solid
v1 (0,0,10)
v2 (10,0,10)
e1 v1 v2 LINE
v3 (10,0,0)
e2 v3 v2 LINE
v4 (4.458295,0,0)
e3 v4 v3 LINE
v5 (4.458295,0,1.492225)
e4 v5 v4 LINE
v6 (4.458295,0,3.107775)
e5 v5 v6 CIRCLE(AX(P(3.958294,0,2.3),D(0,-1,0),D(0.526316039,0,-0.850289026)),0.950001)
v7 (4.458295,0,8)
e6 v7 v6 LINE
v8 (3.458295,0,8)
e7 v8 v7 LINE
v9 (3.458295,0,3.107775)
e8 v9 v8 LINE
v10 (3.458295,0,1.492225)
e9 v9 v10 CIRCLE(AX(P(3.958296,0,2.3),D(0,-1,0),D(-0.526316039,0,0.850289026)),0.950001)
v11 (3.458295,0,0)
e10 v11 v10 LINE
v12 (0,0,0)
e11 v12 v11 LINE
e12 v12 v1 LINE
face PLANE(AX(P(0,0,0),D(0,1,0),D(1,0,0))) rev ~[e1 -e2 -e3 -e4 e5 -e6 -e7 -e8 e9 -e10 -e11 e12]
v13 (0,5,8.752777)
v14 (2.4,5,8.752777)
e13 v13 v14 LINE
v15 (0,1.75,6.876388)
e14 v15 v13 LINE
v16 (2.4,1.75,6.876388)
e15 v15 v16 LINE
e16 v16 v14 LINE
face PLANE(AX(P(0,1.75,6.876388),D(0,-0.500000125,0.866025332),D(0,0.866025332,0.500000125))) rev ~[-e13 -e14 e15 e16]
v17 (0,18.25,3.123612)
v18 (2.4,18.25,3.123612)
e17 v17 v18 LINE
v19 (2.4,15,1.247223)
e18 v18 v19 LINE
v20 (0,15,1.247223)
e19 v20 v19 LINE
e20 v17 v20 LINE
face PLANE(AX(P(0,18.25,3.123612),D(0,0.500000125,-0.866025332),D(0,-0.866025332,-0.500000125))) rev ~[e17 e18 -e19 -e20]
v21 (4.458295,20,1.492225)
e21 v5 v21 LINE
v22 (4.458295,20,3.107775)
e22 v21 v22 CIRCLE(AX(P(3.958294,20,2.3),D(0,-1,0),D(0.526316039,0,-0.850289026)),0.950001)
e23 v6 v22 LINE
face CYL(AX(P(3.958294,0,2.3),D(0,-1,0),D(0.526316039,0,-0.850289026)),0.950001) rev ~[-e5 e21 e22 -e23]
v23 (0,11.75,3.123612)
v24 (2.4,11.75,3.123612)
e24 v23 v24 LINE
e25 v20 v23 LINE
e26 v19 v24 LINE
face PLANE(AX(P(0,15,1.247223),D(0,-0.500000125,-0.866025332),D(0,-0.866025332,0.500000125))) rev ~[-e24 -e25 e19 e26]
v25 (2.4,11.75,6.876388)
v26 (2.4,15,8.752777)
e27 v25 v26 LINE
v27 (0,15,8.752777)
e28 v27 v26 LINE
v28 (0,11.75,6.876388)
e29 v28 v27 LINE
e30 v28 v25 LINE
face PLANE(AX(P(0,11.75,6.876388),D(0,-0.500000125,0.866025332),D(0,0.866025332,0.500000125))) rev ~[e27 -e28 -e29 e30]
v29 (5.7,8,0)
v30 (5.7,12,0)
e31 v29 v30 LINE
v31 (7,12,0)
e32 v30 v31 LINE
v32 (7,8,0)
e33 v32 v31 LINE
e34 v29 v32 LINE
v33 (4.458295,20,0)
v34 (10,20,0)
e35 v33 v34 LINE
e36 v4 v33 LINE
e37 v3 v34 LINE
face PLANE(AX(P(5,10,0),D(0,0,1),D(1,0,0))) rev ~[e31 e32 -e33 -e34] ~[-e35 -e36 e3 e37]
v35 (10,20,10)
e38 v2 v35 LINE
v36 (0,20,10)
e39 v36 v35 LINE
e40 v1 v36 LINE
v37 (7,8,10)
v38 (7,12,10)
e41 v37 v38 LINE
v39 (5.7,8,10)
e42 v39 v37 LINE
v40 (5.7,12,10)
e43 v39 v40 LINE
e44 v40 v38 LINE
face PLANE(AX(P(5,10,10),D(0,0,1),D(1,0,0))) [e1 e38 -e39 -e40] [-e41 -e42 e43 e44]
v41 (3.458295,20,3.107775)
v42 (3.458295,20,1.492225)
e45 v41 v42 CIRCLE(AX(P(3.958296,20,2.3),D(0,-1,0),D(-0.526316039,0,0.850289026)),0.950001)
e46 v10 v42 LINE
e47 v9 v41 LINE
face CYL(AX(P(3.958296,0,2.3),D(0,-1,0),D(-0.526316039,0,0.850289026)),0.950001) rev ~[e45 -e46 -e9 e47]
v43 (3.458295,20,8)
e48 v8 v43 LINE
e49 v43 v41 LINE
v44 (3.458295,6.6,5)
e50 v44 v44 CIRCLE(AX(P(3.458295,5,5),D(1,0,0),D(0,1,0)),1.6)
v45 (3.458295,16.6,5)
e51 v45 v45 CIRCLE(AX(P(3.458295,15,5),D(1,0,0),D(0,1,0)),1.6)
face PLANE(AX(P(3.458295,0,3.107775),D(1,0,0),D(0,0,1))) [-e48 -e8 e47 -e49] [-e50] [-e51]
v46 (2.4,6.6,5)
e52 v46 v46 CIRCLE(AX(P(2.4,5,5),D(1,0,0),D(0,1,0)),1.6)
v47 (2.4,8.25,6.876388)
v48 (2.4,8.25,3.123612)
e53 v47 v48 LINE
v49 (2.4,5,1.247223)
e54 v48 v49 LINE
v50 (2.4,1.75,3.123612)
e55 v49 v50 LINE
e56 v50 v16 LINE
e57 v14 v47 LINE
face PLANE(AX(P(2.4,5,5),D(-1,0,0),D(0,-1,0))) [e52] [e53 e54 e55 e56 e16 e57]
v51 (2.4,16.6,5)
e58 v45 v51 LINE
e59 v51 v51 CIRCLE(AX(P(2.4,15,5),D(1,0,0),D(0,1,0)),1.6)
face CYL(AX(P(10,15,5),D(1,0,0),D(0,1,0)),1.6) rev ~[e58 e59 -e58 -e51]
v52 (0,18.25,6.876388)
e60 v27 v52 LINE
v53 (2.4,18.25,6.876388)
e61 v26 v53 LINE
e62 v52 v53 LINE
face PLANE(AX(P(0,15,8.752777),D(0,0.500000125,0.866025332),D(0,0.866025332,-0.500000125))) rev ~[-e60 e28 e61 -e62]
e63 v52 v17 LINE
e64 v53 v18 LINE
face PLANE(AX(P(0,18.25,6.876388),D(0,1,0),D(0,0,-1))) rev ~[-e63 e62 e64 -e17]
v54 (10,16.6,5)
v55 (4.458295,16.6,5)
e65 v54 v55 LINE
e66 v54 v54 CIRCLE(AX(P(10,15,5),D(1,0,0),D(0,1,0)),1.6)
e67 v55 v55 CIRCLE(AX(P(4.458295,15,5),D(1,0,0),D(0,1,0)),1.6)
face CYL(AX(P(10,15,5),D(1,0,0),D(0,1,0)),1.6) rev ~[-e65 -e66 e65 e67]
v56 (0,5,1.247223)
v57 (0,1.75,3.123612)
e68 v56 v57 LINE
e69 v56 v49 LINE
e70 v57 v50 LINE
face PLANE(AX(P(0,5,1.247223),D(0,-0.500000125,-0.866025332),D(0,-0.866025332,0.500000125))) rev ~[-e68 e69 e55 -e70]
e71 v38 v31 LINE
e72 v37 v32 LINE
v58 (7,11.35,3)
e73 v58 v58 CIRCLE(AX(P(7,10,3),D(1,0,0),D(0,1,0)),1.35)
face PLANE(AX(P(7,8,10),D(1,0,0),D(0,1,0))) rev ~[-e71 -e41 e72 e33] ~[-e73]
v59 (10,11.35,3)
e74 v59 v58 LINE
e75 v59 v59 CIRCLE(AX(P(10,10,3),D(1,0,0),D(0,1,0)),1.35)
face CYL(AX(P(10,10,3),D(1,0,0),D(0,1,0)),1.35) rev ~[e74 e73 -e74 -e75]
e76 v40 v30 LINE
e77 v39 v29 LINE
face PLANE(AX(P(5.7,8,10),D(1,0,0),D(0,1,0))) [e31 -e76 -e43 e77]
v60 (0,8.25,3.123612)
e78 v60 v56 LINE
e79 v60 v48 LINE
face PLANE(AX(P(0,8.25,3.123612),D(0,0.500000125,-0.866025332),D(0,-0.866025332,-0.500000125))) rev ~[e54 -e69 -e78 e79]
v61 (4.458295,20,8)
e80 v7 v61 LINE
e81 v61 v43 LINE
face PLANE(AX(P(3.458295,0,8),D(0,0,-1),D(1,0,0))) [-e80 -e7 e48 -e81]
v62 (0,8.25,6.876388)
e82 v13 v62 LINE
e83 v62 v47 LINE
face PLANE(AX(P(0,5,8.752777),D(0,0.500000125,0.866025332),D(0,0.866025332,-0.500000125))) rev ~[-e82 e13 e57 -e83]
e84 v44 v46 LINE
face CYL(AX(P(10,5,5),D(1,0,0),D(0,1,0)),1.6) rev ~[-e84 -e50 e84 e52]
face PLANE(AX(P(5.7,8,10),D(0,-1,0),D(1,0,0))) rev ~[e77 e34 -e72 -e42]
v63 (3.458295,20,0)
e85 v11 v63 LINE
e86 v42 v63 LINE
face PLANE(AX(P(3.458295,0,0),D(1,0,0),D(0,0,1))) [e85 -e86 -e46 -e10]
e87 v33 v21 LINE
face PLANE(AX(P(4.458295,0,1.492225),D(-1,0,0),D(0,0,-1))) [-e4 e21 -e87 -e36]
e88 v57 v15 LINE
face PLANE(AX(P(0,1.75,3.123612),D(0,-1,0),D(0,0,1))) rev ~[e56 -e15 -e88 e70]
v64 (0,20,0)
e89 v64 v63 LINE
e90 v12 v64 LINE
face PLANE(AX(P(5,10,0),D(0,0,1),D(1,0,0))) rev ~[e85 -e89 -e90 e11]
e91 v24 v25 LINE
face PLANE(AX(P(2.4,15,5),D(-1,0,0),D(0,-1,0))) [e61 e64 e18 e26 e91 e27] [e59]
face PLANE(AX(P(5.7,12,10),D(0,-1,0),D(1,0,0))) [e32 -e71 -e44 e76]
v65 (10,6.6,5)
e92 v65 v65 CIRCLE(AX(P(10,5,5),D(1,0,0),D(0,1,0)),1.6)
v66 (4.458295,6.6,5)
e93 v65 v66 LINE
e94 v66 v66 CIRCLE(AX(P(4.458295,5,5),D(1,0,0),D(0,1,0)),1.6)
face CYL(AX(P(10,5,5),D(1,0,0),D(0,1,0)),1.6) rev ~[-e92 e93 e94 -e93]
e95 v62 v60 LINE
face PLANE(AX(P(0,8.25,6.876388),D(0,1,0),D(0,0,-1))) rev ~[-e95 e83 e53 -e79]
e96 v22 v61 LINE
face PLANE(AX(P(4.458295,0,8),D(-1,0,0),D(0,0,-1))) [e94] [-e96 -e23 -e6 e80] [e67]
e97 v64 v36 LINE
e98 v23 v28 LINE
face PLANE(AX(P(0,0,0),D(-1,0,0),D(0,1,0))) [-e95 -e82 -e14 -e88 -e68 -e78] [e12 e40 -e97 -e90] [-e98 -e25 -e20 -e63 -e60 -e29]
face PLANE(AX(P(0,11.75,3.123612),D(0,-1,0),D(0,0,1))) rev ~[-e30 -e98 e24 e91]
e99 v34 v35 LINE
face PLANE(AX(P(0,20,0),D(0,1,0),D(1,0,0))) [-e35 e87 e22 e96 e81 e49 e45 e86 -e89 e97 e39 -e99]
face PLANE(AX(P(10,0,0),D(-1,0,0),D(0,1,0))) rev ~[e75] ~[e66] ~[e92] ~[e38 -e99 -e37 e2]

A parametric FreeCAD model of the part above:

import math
import FreeCAD as App
import Part
import Sketcher

V = App.Vector
Q = App.Units.Quantity

doc = App.newDocument("Part")
body = doc.addObject("PartDesign::Body", "Body")

# Sketch on XY plane
sketch1 = body.newObject("Sketcher::SketchObject", "Sketch")
sketch1.AttachmentSupport = (doc.getObject("XY_Plane"), [""])
sketch1.MapMode = "FlatFace"
sketch1.addGeometry(Part.LineSegment(V(0, 20, 0), V(0, 0, 0)), False)
sketch1.addGeometry(Part.LineSegment(V(0, 0, 0), V(10, 0, 0)), False)
sketch1.addGeometry(Part.LineSegment(V(10, 0, 0), V(10, 20, 0)), False)
sketch1.addGeometry(Part.LineSegment(V(10, 20, 0), V(0, 20, 0)), False)
sketch1.addConstraint(Sketcher.Constraint("Coincident", 0, 2, 1, 1))
sketch1.addConstraint(Sketcher.Constraint("Coincident", 1, 2, 2, 1))
sketch1.addConstraint(Sketcher.Constraint("Coincident", 2, 2, 3, 1))
sketch1.addConstraint(Sketcher.Constraint("Coincident", 3, 2, 0, 1))
sketch1.addConstraint(Sketcher.Constraint("Vertical", 0))
sketch1.addConstraint(Sketcher.Constraint("Horizontal", 1))
sketch1.addConstraint(Sketcher.Constraint("Vertical", 2))
sketch1.addConstraint(Sketcher.Constraint("Horizontal", 3))
sketch1.addConstraint(Sketcher.Constraint("Coincident", 0, 2, -1, 1))
sketch1.addConstraint(Sketcher.Constraint("DistanceX", 1, 1, 1, 2, 10.0))
sketch1.addConstraint(Sketcher.Constraint("DistanceY", 0, 2, 0, 1, 20.0))
pad1 = body.newObject("PartDesign::Pad", "Pad")
pad1.Profile = sketch1
pad1.Length = 10

# Sketch on XZ plane
sketch2 = body.newObject("Sketcher::SketchObject", "Sketch001")
sketch2.AttachmentSupport = (doc.getObject("XZ_Plane"), [""])
sketch2.MapMode = "FlatFace"
sketch2.addGeometry(Part.LineSegment(V(3.458295, 1.492225, 0), V(3.458295, 0, 0)), False)
sketch2.addGeometry(Part.LineSegment(V(3.458295, 0, 0), V(4.458295, 0, 0)), False)
sketch2.addGeometry(Part.LineSegment(V(4.458295, 0, 0), V(4.458295, 1.492225, 0)), False)
sketch2.addGeometry(Part.ArcOfCircle(Part.Circle(V(3.958294, 2.3, 0), V(0, 0, 1), 0.950001), math.radians(-58.243119), math.radians(58.243119)), False)
sketch2.addGeometry(Part.LineSegment(V(4.458295, 3.107775, 0), V(4.458295, 8, 0)), False)
sketch2.addGeometry(Part.LineSegment(V(4.458295, 8, 0), V(3.458295, 8, 0)), False)
sketch2.addGeometry(Part.LineSegment(V(3.458295, 8, 0), V(3.458295, 3.107775, 0)), False)
sketch2.addGeometry(Part.ArcOfCircle(Part.Circle(V(3.958296, 2.3, 0), V(0, 0, 1), 0.950001), math.radians(121.756881), math.radians(238.243119)), False)
sketch2.addConstraint(Sketcher.Constraint("Coincident", 0, 2, 1, 1))
sketch2.addConstraint(Sketcher.Constraint("Coincident", 1, 2, 2, 1))
sketch2.addConstraint(Sketcher.Constraint("Coincident", 2, 2, 3, 1))
sketch2.addConstraint(Sketcher.Constraint("Coincident", 3, 2, 4, 1))
sketch2.addConstraint(Sketcher.Constraint("Coincident", 4, 2, 5, 1))
sketch2.addConstraint(Sketcher.Constraint("Coincident", 5, 2, 6, 1))
sketch2.addConstraint(Sketcher.Constraint("Coincident", 6, 2, 7, 1))
sketch2.addConstraint(Sketcher.Constraint("Coincident", 7, 2, 0, 1))
sketch2.addConstraint(Sketcher.Constraint("Vertical", 0))
sketch2.addConstraint(Sketcher.Constraint("Horizontal", 1))
sketch2.addConstraint(Sketcher.Constraint("Vertical", 2))
sketch2.addConstraint(Sketcher.Constraint("Vertical", 4))
sketch2.addConstraint(Sketcher.Constraint("Horizontal", 5))
sketch2.addConstraint(Sketcher.Constraint("Vertical", 6))
sketch2.addConstraint(Sketcher.Constraint("Coincident", 7, 3, 3, 3))
sketch2.addConstraint(Sketcher.Constraint("Equal", 3, 7))
sketch2.addConstraint(Sketcher.Constraint("PointOnObject", 0, 2, -1))
sketch2.addConstraint(Sketcher.Constraint("Horizontal", 3, 2, 6, 2))
sketch2.addConstraint(Sketcher.Constraint("Horizontal", 2, 2, 7, 2))
sketch2.addConstraint(Sketcher.Constraint("Vertical", 2, 2, 3, 2))
sketch2.addConstraint(Sketcher.Constraint("DistanceX", 1, 1, 1, 2, 1.0))
sketch2.addConstraint(Sketcher.Constraint("Radius", 3, 0.950001))
sketch2.addConstraint(Sketcher.Constraint("DistanceY", -1, 1, 4, 2, 8.0))
sketch2.addConstraint(Sketcher.Constraint("DistanceY", -1, 1, 3, 3, 2.3))
sketch2.addConstraint(Sketcher.Constraint("DistanceX", -1, 1, 3, 3, 3.958294))
pocket1 = body.newObject("PartDesign::Pocket", "Pocket")
pocket1.Profile = sketch2
pocket1.Type = "ThroughAll"

# Sketch on YZ plane
sketch3 = body.newObject("Sketcher::SketchObject", "Sketch002")
sketch3.AttachmentSupport = (doc.getObject("YZ_Plane"), [""])
sketch3.MapMode = "FlatFace"
sketch3.addGeometry(Part.LineSegment(V(8.25, 6.876388, 0), V(8.25, 3.123612, 0)), False)
sketch3.addGeometry(Part.LineSegment(V(8.25, 3.123612, 0), V(5, 1.247223, 0)), False)
sketch3.addGeometry(Part.LineSegment(V(5, 1.247223, 0), V(1.75, 3.123612, 0)), False)
sketch3.addGeometry(Part.LineSegment(V(1.75, 3.123612, 0), V(1.75, 6.876388, 0)), False)
sketch3.addGeometry(Part.LineSegment(V(1.75, 6.876388, 0), V(5, 8.752777, 0)), False)
sketch3.addGeometry(Part.LineSegment(V(5, 8.752777, 0), V(8.25, 6.876388, 0)), False)
sketch3.addGeometry(Part.LineSegment(V(18.25, 6.876388, 0), V(18.25, 3.123612, 0)), False)
sketch3.addGeometry(Part.LineSegment(V(18.25, 3.123612, 0), V(15, 1.247223, 0)), False)
sketch3.addGeometry(Part.LineSegment(V(15, 1.247223, 0), V(11.75, 3.123612, 0)), False)
sketch3.addGeometry(Part.LineSegment(V(11.75, 3.123612, 0), V(11.75, 6.876388, 0)), False)
sketch3.addGeometry(Part.LineSegment(V(11.75, 6.876388, 0), V(15, 8.752777, 0)), False)
sketch3.addGeometry(Part.LineSegment(V(15, 8.752777, 0), V(18.25, 6.876388, 0)), False)
sketch3.addConstraint(Sketcher.Constraint("Coincident", 0, 2, 1, 1))
sketch3.addConstraint(Sketcher.Constraint("Coincident", 1, 2, 2, 1))
sketch3.addConstraint(Sketcher.Constraint("Coincident", 2, 2, 3, 1))
sketch3.addConstraint(Sketcher.Constraint("Coincident", 3, 2, 4, 1))
sketch3.addConstraint(Sketcher.Constraint("Coincident", 4, 2, 5, 1))
sketch3.addConstraint(Sketcher.Constraint("Coincident", 5, 2, 0, 1))
sketch3.addConstraint(Sketcher.Constraint("Coincident", 6, 2, 7, 1))
sketch3.addConstraint(Sketcher.Constraint("Coincident", 7, 2, 8, 1))
sketch3.addConstraint(Sketcher.Constraint("Coincident", 8, 2, 9, 1))
sketch3.addConstraint(Sketcher.Constraint("Coincident", 9, 2, 10, 1))
sketch3.addConstraint(Sketcher.Constraint("Coincident", 10, 2, 11, 1))
sketch3.addConstraint(Sketcher.Constraint("Coincident", 11, 2, 6, 1))
sketch3.addConstraint(Sketcher.Constraint("Vertical", 0))
sketch3.addConstraint(Sketcher.Constraint("Vertical", 3))
sketch3.addConstraint(Sketcher.Constraint("Vertical", 6))
sketch3.addConstraint(Sketcher.Constraint("Vertical", 9))
sketch3.addConstraint(Sketcher.Constraint("Parallel", 1, 4))
sketch3.addConstraint(Sketcher.Constraint("Parallel", 2, 5))
sketch3.addConstraint(Sketcher.Constraint("Parallel", 4, 7))
sketch3.addConstraint(Sketcher.Constraint("Parallel", 5, 8))
sketch3.addConstraint(Sketcher.Constraint("Parallel", 7, 10))
sketch3.addConstraint(Sketcher.Constraint("Parallel", 8, 11))
sketch3.addConstraint(Sketcher.Constraint("Horizontal", 0, 2, 2, 2))
sketch3.addConstraint(Sketcher.Constraint("Horizontal", 3, 2, 5, 2))
sketch3.addConstraint(Sketcher.Constraint("Horizontal", 2, 2, 6, 2))
sketch3.addConstraint(Sketcher.Constraint("Horizontal", 1, 2, 7, 2))
sketch3.addConstraint(Sketcher.Constraint("Horizontal", 6, 2, 8, 2))
sketch3.addConstraint(Sketcher.Constraint("Horizontal", 5, 2, 9, 2))
sketch3.addConstraint(Sketcher.Constraint("Horizontal", 4, 2, 10, 2))
sketch3.addConstraint(Sketcher.Constraint("Vertical", 1, 2, 4, 2))
sketch3.addConstraint(Sketcher.Constraint("Angle", 1, Q("-149.999992 deg")))
sketch3.addConstraint(Sketcher.Constraint("DistanceX", -1, 1, 1, 2, 5.0))
sketch3.addConstraint(Sketcher.Constraint("DistanceX", -1, 1, 7, 2, 15.0))
sketch3.addConstraint(Sketcher.Constraint("DistanceX", 2, 2, 0, 2, 6.5))
sketch3.addConstraint(Sketcher.Constraint("DistanceY", 0, 2, 0, 1, 3.752776))
sketch3.addConstraint(Sketcher.Constraint("DistanceY", -1, 1, 0, 2, 3.123612))
pocket2 = body.newObject("PartDesign::Pocket", "Pocket001")
pocket2.Profile = sketch3
pocket2.Length = 2.4
pocket2.Reversed = True

# Sketch on YZ plane
sketch4 = body.newObject("Sketcher::SketchObject", "Sketch003")
sketch4.AttachmentSupport = (doc.getObject("YZ_Plane"), [""])
sketch4.MapMode = "FlatFace"
sketch4.AttachmentOffset = App.Placement(V(0, 0, 10), App.Rotation())
sketch4.addGeometry(Part.Circle(V(5, 5, 0), V(0, 0, 1), 1.6), False)
sketch4.addGeometry(Part.Circle(V(15, 5, 0), V(0, 0, 1), 1.6), False)
sketch4.addConstraint(Sketcher.Constraint("Equal", 0, 1))
sketch4.addConstraint(Sketcher.Constraint("Horizontal", 0, 3, 1, 3))
sketch4.addConstraint(Sketcher.Constraint("Diameter", 0, 3.2))
sketch4.addConstraint(Sketcher.Constraint("DistanceX", -1, 1, 0, 3, 5.0))
sketch4.addConstraint(Sketcher.Constraint("DistanceY", -1, 1, 0, 3, 5.0))
sketch4.addConstraint(Sketcher.Constraint("DistanceX", -1, 1, 1, 3, 15.0))
pocket3 = body.newObject("PartDesign::Pocket", "Pocket002")
pocket3.Profile = sketch4
pocket3.Type = "ThroughAll"

# Sketch on XY plane
sketch5 = body.newObject("Sketcher::SketchObject", "Sketch004")
sketch5.AttachmentSupport = (doc.getObject("XY_Plane"), [""])
sketch5.MapMode = "FlatFace"
sketch5.AttachmentOffset = App.Placement(V(0, 0, 10), App.Rotation())
sketch5.addGeometry(Part.LineSegment(V(5.7, 12, 0), V(5.7, 8, 0)), False)
sketch5.addGeometry(Part.LineSegment(V(5.7, 8, 0), V(7, 8, 0)), False)
sketch5.addGeometry(Part.LineSegment(V(7, 8, 0), V(7, 12, 0)), False)
sketch5.addGeometry(Part.LineSegment(V(7, 12, 0), V(5.7, 12, 0)), False)
sketch5.addConstraint(Sketcher.Constraint("Coincident", 0, 2, 1, 1))
sketch5.addConstraint(Sketcher.Constraint("Coincident", 1, 2, 2, 1))
sketch5.addConstraint(Sketcher.Constraint("Coincident", 2, 2, 3, 1))
sketch5.addConstraint(Sketcher.Constraint("Coincident", 3, 2, 0, 1))
sketch5.addConstraint(Sketcher.Constraint("Vertical", 0))
sketch5.addConstraint(Sketcher.Constraint("Horizontal", 1))
sketch5.addConstraint(Sketcher.Constraint("Vertical", 2))
sketch5.addConstraint(Sketcher.Constraint("Horizontal", 3))
sketch5.addConstraint(Sketcher.Constraint("DistanceY", 0, 2, 0, 1, 4.0))
sketch5.addConstraint(Sketcher.Constraint("DistanceX", 1, 1, 1, 2, 1.3))
sketch5.addConstraint(Sketcher.Constraint("DistanceY", -1, 1, 0, 2, 8.0))
sketch5.addConstraint(Sketcher.Constraint("DistanceX", -1, 1, 1, 2, 7.0))
pocket4 = body.newObject("PartDesign::Pocket", "Pocket003")
pocket4.Profile = sketch5
pocket4.Type = "ThroughAll"

# Sketch on YZ plane
sketch6 = body.newObject("Sketcher::SketchObject", "Sketch005")
sketch6.AttachmentSupport = (doc.getObject("YZ_Plane"), [""])
sketch6.MapMode = "FlatFace"
sketch6.AttachmentOffset = App.Placement(V(0, 0, 10), App.Rotation())
sketch6.addGeometry(Part.Circle(V(10, 3, 0), V(0, 0, 1), 1.35), False)
sketch6.addConstraint(Sketcher.Constraint("Diameter", 0, 2.7))
sketch6.addConstraint(Sketcher.Constraint("DistanceX", -1, 1, 0, 3, 10.0))
sketch6.addConstraint(Sketcher.Constraint("DistanceY", -1, 1, 0, 3, 3.0))
pocket5 = body.newObject("PartDesign::Pocket", "Pocket004")
pocket5.Profile = sketch6
pocket5.Length = 3

doc.recompute()
